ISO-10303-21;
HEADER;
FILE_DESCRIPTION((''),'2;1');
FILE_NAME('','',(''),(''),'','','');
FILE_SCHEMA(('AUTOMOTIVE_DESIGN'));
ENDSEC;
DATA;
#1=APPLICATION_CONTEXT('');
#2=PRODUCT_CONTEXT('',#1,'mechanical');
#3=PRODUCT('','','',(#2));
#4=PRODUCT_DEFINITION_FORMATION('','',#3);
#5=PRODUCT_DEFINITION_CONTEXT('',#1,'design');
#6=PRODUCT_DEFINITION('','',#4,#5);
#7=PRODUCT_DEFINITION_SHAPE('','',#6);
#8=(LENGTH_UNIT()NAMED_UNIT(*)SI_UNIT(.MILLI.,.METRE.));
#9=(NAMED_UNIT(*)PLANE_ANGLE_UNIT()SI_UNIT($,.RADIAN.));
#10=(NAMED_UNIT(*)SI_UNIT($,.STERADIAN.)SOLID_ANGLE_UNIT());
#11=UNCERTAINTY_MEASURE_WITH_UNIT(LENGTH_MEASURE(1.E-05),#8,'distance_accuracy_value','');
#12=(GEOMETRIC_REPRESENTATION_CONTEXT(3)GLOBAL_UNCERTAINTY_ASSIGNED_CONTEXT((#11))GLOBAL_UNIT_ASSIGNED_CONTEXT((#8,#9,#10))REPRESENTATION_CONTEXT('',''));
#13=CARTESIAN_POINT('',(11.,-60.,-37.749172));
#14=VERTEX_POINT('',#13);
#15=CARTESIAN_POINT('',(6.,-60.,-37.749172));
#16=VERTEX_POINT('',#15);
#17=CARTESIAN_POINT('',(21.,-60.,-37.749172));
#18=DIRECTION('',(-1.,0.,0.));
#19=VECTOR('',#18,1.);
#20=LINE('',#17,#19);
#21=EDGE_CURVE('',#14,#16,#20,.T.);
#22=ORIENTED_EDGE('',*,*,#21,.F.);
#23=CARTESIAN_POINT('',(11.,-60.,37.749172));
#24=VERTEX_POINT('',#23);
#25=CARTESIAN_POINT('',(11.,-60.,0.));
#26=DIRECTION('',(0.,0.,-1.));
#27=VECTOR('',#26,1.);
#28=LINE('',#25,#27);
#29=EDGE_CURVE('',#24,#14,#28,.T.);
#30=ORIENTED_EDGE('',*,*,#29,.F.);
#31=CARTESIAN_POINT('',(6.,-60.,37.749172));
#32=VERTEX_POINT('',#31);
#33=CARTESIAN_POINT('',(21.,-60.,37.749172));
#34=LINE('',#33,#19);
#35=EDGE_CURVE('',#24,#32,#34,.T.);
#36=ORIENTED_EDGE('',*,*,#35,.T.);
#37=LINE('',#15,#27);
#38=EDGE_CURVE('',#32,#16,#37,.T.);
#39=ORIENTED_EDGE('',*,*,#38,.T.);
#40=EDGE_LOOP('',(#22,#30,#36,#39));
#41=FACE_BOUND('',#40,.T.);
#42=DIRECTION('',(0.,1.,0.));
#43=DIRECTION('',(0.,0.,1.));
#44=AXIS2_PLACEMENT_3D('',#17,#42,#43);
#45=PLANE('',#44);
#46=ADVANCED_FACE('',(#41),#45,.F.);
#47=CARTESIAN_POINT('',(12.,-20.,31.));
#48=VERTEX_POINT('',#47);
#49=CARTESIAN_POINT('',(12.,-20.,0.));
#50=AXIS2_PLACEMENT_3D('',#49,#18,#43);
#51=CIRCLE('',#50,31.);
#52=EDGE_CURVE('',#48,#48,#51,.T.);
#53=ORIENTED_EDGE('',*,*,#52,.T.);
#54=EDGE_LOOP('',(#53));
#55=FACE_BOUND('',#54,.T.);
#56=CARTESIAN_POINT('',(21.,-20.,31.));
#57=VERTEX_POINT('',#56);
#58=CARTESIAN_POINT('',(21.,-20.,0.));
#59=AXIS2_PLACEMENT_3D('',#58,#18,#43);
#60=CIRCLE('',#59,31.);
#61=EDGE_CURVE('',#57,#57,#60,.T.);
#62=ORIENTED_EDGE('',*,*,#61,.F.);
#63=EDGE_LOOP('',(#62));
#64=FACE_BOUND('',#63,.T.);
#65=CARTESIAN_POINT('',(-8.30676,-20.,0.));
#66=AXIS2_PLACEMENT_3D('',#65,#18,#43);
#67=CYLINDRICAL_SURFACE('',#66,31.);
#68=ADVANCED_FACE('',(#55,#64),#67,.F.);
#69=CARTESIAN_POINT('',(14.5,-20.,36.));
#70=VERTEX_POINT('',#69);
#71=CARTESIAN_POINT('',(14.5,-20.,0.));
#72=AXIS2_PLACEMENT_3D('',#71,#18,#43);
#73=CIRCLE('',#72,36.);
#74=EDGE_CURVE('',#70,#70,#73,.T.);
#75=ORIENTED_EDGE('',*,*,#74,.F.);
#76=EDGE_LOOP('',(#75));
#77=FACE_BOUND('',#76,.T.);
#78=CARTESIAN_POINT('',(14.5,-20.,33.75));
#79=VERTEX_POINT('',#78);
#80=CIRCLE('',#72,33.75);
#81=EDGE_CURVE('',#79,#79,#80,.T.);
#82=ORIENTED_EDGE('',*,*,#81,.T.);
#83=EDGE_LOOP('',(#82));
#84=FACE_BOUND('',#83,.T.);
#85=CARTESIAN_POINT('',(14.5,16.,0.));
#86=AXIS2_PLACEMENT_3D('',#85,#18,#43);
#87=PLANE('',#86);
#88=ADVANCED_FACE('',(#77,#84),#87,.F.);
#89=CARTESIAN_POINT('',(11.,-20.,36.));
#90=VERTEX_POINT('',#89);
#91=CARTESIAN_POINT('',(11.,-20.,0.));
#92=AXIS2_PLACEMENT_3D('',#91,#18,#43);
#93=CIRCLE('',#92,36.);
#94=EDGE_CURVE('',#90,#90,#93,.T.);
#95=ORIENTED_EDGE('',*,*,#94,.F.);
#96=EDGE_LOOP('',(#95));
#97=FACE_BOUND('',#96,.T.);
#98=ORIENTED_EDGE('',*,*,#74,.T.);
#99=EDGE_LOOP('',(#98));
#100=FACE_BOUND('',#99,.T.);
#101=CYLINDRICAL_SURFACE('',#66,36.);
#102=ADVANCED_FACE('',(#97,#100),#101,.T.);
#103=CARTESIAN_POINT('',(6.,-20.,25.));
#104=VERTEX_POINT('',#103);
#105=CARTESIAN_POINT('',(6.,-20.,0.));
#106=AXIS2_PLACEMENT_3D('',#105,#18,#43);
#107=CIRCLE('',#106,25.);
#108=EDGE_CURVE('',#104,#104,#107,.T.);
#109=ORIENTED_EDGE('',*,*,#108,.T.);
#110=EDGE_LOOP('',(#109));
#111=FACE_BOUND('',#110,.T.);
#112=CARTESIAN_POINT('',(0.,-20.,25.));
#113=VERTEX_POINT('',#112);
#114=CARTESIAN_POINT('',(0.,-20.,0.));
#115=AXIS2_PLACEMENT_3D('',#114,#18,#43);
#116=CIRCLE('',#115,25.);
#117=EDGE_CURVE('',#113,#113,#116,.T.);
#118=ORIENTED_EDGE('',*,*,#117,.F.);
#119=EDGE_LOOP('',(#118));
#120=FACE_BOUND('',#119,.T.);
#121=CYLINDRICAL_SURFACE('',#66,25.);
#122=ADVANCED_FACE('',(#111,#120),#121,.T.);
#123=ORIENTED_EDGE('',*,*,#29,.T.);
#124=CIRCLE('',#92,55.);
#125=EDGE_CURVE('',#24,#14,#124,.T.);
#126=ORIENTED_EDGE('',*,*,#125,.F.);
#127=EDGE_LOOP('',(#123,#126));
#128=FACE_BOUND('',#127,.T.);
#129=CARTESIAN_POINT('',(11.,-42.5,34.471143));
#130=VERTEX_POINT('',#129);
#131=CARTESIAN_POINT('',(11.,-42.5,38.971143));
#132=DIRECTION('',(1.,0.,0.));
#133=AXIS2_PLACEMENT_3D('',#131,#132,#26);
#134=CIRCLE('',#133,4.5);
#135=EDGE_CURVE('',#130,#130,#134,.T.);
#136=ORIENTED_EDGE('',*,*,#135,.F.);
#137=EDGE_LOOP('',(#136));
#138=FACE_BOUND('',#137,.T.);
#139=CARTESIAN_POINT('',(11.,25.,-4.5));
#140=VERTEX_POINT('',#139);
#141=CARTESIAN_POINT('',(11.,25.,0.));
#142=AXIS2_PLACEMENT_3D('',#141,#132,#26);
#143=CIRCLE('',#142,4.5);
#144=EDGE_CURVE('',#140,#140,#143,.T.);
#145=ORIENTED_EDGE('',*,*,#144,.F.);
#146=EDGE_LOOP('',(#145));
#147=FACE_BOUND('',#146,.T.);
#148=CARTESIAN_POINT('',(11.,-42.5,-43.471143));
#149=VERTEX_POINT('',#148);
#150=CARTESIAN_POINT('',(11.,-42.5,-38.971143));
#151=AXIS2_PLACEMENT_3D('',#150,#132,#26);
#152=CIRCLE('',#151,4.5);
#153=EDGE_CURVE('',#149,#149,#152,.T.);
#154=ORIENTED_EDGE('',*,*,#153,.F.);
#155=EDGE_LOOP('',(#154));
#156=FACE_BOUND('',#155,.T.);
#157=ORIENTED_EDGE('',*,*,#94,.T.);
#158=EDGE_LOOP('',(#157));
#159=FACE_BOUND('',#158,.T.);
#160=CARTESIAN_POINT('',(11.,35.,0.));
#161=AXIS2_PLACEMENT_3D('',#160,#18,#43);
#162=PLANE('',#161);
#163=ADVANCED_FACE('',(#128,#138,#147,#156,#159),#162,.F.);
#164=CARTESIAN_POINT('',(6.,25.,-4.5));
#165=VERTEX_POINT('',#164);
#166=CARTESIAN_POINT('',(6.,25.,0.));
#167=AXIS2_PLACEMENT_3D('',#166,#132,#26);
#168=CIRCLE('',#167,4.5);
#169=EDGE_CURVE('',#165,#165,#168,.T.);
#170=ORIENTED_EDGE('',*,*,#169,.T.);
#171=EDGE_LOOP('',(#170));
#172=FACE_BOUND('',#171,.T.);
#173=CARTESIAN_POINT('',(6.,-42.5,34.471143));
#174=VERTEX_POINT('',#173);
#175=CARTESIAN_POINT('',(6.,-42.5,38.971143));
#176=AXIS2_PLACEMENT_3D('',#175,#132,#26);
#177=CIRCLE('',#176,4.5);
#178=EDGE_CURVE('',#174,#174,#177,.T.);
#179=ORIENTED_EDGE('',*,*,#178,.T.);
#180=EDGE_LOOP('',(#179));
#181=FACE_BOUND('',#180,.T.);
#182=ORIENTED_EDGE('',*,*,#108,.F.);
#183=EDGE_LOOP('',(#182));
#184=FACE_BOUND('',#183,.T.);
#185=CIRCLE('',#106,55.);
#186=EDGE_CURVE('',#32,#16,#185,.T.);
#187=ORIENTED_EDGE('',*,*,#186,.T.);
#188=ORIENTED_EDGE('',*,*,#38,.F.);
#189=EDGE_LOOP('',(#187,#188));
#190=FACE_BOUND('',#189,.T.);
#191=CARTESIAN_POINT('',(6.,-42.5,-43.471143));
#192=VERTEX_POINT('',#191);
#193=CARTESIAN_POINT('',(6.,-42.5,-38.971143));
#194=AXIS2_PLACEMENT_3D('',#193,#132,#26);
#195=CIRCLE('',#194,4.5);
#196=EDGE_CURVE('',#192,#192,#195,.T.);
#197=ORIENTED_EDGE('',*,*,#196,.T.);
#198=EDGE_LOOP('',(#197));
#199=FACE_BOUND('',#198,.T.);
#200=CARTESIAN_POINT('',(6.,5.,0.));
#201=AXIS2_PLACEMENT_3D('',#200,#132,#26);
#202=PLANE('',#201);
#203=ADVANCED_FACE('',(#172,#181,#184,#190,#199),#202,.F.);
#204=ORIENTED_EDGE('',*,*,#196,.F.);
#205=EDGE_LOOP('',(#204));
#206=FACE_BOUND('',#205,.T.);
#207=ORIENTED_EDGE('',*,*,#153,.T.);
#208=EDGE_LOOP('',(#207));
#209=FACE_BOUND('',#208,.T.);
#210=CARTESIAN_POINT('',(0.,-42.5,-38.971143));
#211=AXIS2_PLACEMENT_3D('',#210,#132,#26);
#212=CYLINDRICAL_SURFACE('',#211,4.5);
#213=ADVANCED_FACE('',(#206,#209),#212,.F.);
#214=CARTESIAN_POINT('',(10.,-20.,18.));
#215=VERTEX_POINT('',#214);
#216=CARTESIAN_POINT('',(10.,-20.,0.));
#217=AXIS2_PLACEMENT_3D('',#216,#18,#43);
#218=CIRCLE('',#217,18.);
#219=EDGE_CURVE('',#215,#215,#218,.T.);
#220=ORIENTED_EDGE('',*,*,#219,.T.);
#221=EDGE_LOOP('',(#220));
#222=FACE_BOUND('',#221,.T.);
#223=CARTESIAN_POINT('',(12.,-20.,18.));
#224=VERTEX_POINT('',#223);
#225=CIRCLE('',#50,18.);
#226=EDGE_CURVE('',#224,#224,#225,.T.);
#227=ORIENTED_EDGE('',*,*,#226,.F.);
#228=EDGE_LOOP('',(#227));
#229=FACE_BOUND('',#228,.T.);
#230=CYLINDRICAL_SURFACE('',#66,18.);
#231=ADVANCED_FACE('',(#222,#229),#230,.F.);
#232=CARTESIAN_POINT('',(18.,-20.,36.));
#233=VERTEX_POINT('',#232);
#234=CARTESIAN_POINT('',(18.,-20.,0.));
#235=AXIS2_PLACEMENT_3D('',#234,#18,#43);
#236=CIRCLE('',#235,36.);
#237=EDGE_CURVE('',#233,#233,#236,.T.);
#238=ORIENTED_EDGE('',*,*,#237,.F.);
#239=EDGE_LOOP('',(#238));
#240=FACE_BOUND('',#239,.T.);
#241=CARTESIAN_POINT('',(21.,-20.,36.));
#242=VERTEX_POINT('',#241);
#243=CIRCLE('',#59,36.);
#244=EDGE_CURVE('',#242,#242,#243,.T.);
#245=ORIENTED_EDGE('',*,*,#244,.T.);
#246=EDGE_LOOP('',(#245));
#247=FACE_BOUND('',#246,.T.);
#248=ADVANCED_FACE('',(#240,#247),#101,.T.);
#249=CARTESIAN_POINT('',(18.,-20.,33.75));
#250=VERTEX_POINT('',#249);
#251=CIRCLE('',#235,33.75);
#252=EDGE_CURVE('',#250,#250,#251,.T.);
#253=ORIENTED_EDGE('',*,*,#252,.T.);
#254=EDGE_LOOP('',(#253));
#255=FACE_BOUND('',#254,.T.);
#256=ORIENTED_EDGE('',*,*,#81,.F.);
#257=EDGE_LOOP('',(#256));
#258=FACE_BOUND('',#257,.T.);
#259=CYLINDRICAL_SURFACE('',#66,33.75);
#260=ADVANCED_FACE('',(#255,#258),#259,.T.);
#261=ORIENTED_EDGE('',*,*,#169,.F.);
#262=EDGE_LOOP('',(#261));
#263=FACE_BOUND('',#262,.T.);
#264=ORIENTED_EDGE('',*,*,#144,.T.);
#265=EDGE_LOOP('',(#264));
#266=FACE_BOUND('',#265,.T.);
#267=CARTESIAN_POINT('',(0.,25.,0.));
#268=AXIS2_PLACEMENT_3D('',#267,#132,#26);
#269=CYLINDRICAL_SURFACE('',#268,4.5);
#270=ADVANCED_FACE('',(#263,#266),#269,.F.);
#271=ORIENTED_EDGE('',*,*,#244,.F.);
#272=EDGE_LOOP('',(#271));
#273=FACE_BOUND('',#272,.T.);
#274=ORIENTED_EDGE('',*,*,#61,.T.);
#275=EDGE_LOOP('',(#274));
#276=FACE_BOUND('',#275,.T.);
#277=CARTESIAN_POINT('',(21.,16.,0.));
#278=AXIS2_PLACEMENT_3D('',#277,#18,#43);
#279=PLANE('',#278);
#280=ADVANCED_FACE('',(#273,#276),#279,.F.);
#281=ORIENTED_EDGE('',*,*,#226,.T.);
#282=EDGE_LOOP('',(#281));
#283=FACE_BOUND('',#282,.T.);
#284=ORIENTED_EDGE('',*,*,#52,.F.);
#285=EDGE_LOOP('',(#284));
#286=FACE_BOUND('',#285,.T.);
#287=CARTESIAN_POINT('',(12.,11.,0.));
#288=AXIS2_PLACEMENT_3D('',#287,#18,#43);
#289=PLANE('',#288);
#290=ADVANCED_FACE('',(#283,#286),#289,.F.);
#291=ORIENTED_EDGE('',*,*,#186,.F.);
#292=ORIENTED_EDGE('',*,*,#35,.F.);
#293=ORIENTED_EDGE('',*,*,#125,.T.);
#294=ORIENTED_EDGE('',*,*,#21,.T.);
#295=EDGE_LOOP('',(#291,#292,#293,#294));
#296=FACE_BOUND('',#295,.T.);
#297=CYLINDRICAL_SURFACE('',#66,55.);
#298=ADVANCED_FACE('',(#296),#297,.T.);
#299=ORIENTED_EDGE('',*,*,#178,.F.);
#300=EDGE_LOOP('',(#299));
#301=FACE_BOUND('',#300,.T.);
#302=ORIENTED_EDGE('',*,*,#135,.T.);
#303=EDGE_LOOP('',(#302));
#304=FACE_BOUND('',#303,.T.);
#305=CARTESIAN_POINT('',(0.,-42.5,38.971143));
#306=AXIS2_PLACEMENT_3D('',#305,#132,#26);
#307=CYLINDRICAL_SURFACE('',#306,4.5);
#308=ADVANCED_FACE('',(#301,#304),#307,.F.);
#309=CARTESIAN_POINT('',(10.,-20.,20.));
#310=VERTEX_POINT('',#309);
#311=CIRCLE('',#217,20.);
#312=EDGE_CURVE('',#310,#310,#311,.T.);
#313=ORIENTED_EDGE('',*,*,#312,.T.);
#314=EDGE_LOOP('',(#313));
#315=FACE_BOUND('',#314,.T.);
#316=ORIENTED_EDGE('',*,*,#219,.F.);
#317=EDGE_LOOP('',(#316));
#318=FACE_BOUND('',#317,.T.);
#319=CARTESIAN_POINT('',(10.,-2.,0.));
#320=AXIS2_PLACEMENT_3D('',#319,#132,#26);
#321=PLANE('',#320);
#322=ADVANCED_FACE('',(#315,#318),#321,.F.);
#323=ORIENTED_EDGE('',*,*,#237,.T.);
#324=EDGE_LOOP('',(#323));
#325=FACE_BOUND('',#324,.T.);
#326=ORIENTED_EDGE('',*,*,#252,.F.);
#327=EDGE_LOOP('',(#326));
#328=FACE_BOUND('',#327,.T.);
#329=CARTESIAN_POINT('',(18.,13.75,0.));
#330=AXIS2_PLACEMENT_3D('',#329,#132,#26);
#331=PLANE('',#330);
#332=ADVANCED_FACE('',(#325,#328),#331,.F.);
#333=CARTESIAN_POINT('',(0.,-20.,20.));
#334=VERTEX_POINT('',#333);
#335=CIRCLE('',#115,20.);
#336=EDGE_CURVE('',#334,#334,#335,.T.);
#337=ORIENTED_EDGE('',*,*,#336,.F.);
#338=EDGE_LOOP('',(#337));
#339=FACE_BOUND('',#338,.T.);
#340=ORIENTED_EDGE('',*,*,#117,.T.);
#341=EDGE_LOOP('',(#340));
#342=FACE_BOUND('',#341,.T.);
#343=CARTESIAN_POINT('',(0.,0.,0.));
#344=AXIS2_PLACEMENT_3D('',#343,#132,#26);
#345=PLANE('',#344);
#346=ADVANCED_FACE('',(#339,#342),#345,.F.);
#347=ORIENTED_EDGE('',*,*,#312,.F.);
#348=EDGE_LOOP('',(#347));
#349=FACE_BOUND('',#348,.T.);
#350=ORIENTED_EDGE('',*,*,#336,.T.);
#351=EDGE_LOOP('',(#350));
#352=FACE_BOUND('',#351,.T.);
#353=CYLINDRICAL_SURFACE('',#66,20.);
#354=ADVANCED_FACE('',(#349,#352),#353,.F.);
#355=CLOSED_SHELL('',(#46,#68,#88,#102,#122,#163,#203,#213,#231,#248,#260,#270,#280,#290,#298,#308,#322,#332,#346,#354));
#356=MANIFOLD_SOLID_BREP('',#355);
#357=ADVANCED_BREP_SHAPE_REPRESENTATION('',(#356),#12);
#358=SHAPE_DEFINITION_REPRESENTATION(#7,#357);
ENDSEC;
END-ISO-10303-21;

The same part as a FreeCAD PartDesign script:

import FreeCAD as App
import Part
import Sketcher
from FreeCAD import Vector
Q = App.Units.Quantity


def add_polygon(sketch, points):
    """Adds a closed chain of lines whose ends are joined by coincident constraints."""
    first, n = sketch.GeometryCount, len(points)
    for a, b in zip(points, points[1:] + points[:1]):
        sketch.addGeometry(Part.LineSegment(App.Vector(*a, 0), App.Vector(*b, 0)), False)
    for i in range(n):
        sketch.addConstraint(Sketcher.Constraint("Coincident", first + i, 2, first + (i + 1) % n, 1))

doc = App.newDocument("Part")
body = doc.addObject("PartDesign::Body", "Body")

# Sketch on XY plane
sketch1 = body.newObject("Sketcher::SketchObject", "Sketch")
sketch1.AttachmentSupport = (doc.getObject("XY_Plane"), [""])
sketch1.MapMode = "FlatFace"
add_polygon(sketch1, [(0, 5), (0, 0), (10, 0), (10, -2), (12, -2), (12, 11), (21, 11), (21, 16), (18, 16), (18, 13.8), (14.5, 13.8), (14.5, 16), (11, 16), (11, 35), (6, 35), (6, 5)])  # lines 0-15
sketch1.addGeometry(Part.LineSegment(Vector(0, -20, 0), Vector(21, -20, 0)), True)  # axis
sketch1.addConstraint(Sketcher.Constraint("Vertical", 0))
sketch1.addConstraint(Sketcher.Constraint("Horizontal", 1))
sketch1.addConstraint(Sketcher.Constraint("Vertical", 2))
sketch1.addConstraint(Sketcher.Constraint("Horizontal", 3))
sketch1.addConstraint(Sketcher.Constraint("Vertical", 4))
sketch1.addConstraint(Sketcher.Constraint("Horizontal", 5))
sketch1.addConstraint(Sketcher.Constraint("Vertical", 6))
sketch1.addConstraint(Sketcher.Constraint("Horizontal", 7))
sketch1.addConstraint(Sketcher.Constraint("Vertical", 8))
sketch1.addConstraint(Sketcher.Constraint("Horizontal", 9))
sketch1.addConstraint(Sketcher.Constraint("Vertical", 10))
sketch1.addConstraint(Sketcher.Constraint("Horizontal", 11))
sketch1.addConstraint(Sketcher.Constraint("Vertical", 12))
sketch1.addConstraint(Sketcher.Constraint("Horizontal", 13))
sketch1.addConstraint(Sketcher.Constraint("Vertical", 14))
sketch1.addConstraint(Sketcher.Constraint("Horizontal", 15))
sketch1.addConstraint(Sketcher.Constraint("Horizontal", 16))
sketch1.addConstraint(Sketcher.Constraint("Coincident", 0, 2, -1, 1))
sketch1.addConstraint(Sketcher.Constraint("PointOnObject", 16, 1, -2))
sketch1.addConstraint(Sketcher.Constraint("Horizontal", 7, 2, 10, 2))
sketch1.addConstraint(Sketcher.Constraint("Vertical", 6, 2, 16, 2))
sketch1.addConstraint(Sketcher.Constraint("Equal", 9, 11))
sketch1.addConstraint(Sketcher.Constraint("Equal", 13, 0))
sketch1.addConstraint(Sketcher.Constraint("Equal", 3, 2))
sketch1.addConstraint(Sketcher.Constraint("Equal", 0, 6))
sketch1.addConstraint(Sketcher.Constraint("DistanceX", 1, 1, 1, 2, Q("10 mm")))
sketch1.addConstraint(Sketcher.Constraint("DistanceX", 3, 1, 3, 2, Q("2 mm")))
sketch1.addConstraint(Sketcher.Constraint("DistanceX", 5, 1, 5, 2, Q("9 mm")))
sketch1.addConstraint(Sketcher.Constraint("DistanceX", 7, 2, 7, 1, Q("3 mm")))
sketch1.addConstraint(Sketcher.Constraint("DistanceX", 13, 2, 13, 1, Q("5 mm")))
sketch1.addConstraint(Sketcher.Constraint("DistanceX", 15, 2, 15, 1, Q("6 mm")))
sketch1.addConstraint(Sketcher.Constraint("DistanceY", 4, 1, 4, 2, Q("13 mm")))
sketch1.addConstraint(Sketcher.Constraint("DistanceY", 12, 1, 12, 2, Q("19 mm")))
sketch1.addConstraint(Sketcher.Constraint("DistanceY", 16, 1, -1, 1, Q("20 mm")))
sketch1.addConstraint(Sketcher.Constraint("DistanceY", 8, 2, 8, 1, Q("2.25 mm")))
revolution = body.newObject("PartDesign::Revolution", "Revolution")
revolution.Profile = sketch1
revolution.ReferenceAxis = (sketch1, ["Axis0"])
revolution.Angle = 360

# Sketch on YZ plane
sketch2 = body.newObject("Sketcher::SketchObject", "Sketch001")
sketch2.AttachmentSupport = (doc.getObject("YZ_Plane"), [""])
sketch2.MapMode = "FlatFace"
sketch2.AttachmentOffset = App.Placement(Vector(0, 0, 11), App.Rotation())
sketch2.addGeometry(Part.Circle(Vector(25, 0, 0), Vector(0, 0, 1), 4.5), False)
sketch2.addGeometry(Part.Circle(Vector(-128, -88.3, 0), Vector(0, 0, 1), 4.5), False)
sketch2.addGeometry(Part.Circle(Vector(-128, 88.3, 0), Vector(0, 0, 1), 4.5), False)
sketch2.addGeometry(Part.Circle(Vector(-42.5, -39, 0), Vector(0, 0, 1), 4.5), False)
sketch2.addGeometry(Part.Circle(Vector(-42.5, 39, 0), Vector(0, 0, 1), 4.5), False)
sketch2.addConstraint(Sketcher.Constraint("Equal", 0, 1))
sketch2.addConstraint(Sketcher.Constraint("Equal", 1, 2))
sketch2.addConstraint(Sketcher.Constraint("Equal", 2, 3))
sketch2.addConstraint(Sketcher.Constraint("Equal", 3, 4))
sketch2.addConstraint(Sketcher.Constraint("Symmetric", 1, 3, 2, 3, -1))
sketch2.addConstraint(Sketcher.Constraint("Symmetric", 3, 3, 4, 3, -1))
sketch2.addConstraint(Sketcher.Constraint("PointOnObject", 0, 3, -1))
sketch2.addConstraint(Sketcher.Constraint("Diameter", 0, Q("9 mm")))
sketch2.addConstraint(Sketcher.Constraint("DistanceX", -1, 1, 0, 3, Q("25 mm")))
sketch2.addConstraint(Sketcher.Constraint("DistanceX", 1, 3, -1, 1, Q("128 mm")))
sketch2.addConstraint(Sketcher.Constraint("DistanceX", 3, 3, -1, 1, Q("42.5 mm")))
sketch2.addConstraint(Sketcher.Constraint("DistanceY", 1, 3, -1, 1, Q("88.334591 mm")))
sketch2.addConstraint(Sketcher.Constraint("DistanceY", 1, 3, 3, 3, Q("49.363448 mm")))
pocket1 = body.newObject("PartDesign::Pocket", "Pocket")
pocket1.Profile = sketch2
pocket1.Type = "ThroughAll"

# Sketch on YZ plane
sketch3 = body.newObject("Sketcher::SketchObject", "Sketch002")
sketch3.AttachmentSupport = (doc.getObject("YZ_Plane"), [""])
sketch3.MapMode = "FlatFace"
sketch3.AttachmentOffset = App.Placement(Vector(0, 0, 6), App.Rotation())
add_polygon(sketch3, [(-60, -38), (-90, -38), (-90, 38), (-60, 38)])  # lines 0-3
sketch3.addConstraint(Sketcher.Constraint("Horizontal", 0))
sketch3.addConstraint(Sketcher.Constraint("Vertical", 1))
sketch3.addConstraint(Sketcher.Constraint("Horizontal", 2))
sketch3.addConstraint(Sketcher.Constraint("Vertical", 3))
sketch3.addConstraint(Sketcher.Constraint("DistanceX", 0, 2, 0, 1, Q("30 mm")))
sketch3.addConstraint(Sketcher.Constraint("DistanceX", 0, 2, -1, 1, Q("90 mm")))
sketch3.addConstraint(Sketcher.Constraint("DistanceY", 1, 1, 1, 2, Q("75.498344 mm")))
sketch3.addConstraint(Sketcher.Constraint("DistanceY", 0, 2, -1, 1, Q("37.749172 mm")))
pocket2 = body.newObject("PartDesign::Pocket", "Pocket001")
pocket2.Profile = sketch3
pocket2.Type = "ThroughAll"
pocket2.Reversed = True

doc.recompute()
